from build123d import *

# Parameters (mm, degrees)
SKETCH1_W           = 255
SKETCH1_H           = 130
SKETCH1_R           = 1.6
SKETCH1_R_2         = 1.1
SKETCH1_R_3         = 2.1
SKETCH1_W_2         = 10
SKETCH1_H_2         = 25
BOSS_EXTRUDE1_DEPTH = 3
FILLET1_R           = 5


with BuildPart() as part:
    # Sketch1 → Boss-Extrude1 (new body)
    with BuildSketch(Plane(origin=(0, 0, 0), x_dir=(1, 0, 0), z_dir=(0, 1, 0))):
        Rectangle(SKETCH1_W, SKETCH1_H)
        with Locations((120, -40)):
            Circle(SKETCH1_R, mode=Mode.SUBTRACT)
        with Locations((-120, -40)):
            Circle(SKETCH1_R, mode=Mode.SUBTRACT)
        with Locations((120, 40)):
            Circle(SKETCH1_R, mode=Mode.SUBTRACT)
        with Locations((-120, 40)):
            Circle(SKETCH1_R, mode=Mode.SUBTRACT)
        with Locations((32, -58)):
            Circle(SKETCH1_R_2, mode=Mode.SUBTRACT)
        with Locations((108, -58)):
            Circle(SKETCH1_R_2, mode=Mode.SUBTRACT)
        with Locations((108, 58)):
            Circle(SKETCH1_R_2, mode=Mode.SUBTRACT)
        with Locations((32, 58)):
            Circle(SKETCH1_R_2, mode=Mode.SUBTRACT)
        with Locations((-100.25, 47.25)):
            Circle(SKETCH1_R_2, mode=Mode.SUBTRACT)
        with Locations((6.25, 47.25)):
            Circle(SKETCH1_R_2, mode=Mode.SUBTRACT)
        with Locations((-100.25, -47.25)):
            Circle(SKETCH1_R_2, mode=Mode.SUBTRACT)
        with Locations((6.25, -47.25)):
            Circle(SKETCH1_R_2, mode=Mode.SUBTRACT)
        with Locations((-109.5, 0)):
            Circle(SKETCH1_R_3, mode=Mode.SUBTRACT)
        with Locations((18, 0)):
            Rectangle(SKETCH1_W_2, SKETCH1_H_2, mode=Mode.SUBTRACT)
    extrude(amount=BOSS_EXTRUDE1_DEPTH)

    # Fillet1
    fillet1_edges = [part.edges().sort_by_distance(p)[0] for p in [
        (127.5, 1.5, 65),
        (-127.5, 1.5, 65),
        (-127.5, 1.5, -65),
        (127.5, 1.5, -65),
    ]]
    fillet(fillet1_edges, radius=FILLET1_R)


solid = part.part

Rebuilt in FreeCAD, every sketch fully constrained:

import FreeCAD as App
import Part
import Sketcher
from FreeCAD import Vector
Q = App.Units.Quantity


def edges_at(feature, points):
    """Names of the edges that pass closest to the given points."""
    edges = feature.Shape.Edges
    near = lambda p: min(range(len(edges)), key=lambda i: edges[i].distToShape(Part.Vertex(*p))[0])
    return sorted({f"Edge{near(p) + 1}" for p in points})

doc = App.newDocument("Part")
body = doc.addObject("PartDesign::Body", "Body")

sketch1 = body.newObject("Sketcher::SketchObject", "Sketch")
sketch1.AttachmentSupport = (doc.getObject("XZ_Plane"), [""])
sketch1.MapMode = "FlatFace"
sketch1.addGeometry(Part.LineSegment(Vector(-127.5, -65, 0), Vector(-127.5, 65, 0)), False)
sketch1.addGeometry(Part.LineSegment(Vector(-127.5, 65, 0), Vector(127.5, 65, 0)), False)
sketch1.addGeometry(Part.LineSegment(Vector(127.5, 65, 0), Vector(127.5, -65, 0)), False)
sketch1.addGeometry(Part.LineSegment(Vector(127.5, -65, 0), Vector(-127.5, -65, 0)), False)
sketch1.addGeometry(Part.Circle(Vector(-100.2, 47.2, 0), Vector(0, 0, 1), 1.1), False)
sketch1.addGeometry(Part.Circle(Vector(-120, 40, 0), Vector(0, 0, 1), 1.6), False)
sketch1.addGeometry(Part.Circle(Vector(6.2, 47.2, 0), Vector(0, 0, 1), 1.1), False)
sketch1.addGeometry(Part.Circle(Vector(32, 58, 0), Vector(0, 0, 1), 1.1), False)
sketch1.addGeometry(Part.Circle(Vector(108, 58, 0), Vector(0, 0, 1), 1.1), False)
sketch1.addGeometry(Part.Circle(Vector(120, 40, 0), Vector(0, 0, 1), 1.6), False)
sketch1.addGeometry(Part.Circle(Vector(-109.5, 0, 0), Vector(0, 0, 1), 2.1), False)
sketch1.addGeometry(Part.Circle(Vector(-120, -40, 0), Vector(0, 0, 1), 1.6), False)
sketch1.addGeometry(Part.Circle(Vector(-100.2, -47.2, 0), Vector(0, 0, 1), 1.1), False)
sketch1.addGeometry(Part.LineSegment(Vector(23, 12.5, 0), Vector(13, 12.5, 0)), False)
sketch1.addGeometry(Part.LineSegment(Vector(13, 12.5, 0), Vector(13, -12.5, 0)), False)
sketch1.addGeometry(Part.LineSegment(Vector(13, -12.5, 0), Vector(23, -12.5, 0)), False)
sketch1.addGeometry(Part.LineSegment(Vector(23, -12.5, 0), Vector(23, 12.5, 0)), False)
sketch1.addGeometry(Part.Circle(Vector(6.2, -47.2, 0), Vector(0, 0, 1), 1.1), False)
sketch1.addGeometry(Part.Circle(Vector(32, -58, 0), Vector(0, 0, 1), 1.1), False)
sketch1.addGeometry(Part.Circle(Vector(120, -40, 0), Vector(0, 0, 1), 1.6), False)
sketch1.addGeometry(Part.Circle(Vector(108, -58, 0), Vector(0, 0, 1), 1.1), False)
sketch1.addConstraint(Sketcher.Constraint("Coincident", 0, 2, 1, 1))
sketch1.addConstraint(Sketcher.Constraint("Coincident", 1, 2, 2, 1))
sketch1.addConstraint(Sketcher.Constraint("Coincident", 2, 2, 3, 1))
sketch1.addConstraint(Sketcher.Constraint("Coincident", 3, 2, 0, 1))
sketch1.addConstraint(Sketcher.Constraint("Coincident", 13, 2, 14, 1))
sketch1.addConstraint(Sketcher.Constraint("Coincident", 14, 2, 15, 1))
sketch1.addConstraint(Sketcher.Constraint("Coincident", 15, 2, 16, 1))
sketch1.addConstraint(Sketcher.Constraint("Coincident", 16, 2, 13, 1))
sketch1.addConstraint(Sketcher.Constraint("Vertical", 0))
sketch1.addConstraint(Sketcher.Constraint("Horizontal", 1))
sketch1.addConstraint(Sketcher.Constraint("Vertical", 2))
sketch1.addConstraint(Sketcher.Constraint("Horizontal", 3))
sketch1.addConstraint(Sketcher.Constraint("Horizontal", 13))
sketch1.addConstraint(Sketcher.Constraint("Vertical", 14))
sketch1.addConstraint(Sketcher.Constraint("Horizontal", 15))
sketch1.addConstraint(Sketcher.Constraint("Vertical", 16))
sketch1.addConstraint(Sketcher.Constraint("Equal", 4, 6))
sketch1.addConstraint(Sketcher.Constraint("Equal", 6, 7))
sketch1.addConstraint(Sketcher.Constraint("Equal", 7, 8))
sketch1.addConstraint(Sketcher.Constraint("Equal", 5, 9))
sketch1.addConstraint(Sketcher.Constraint("Equal", 9, 11))
sketch1.addConstraint(Sketcher.Constraint("Equal", 8, 12))
sketch1.addConstraint(Sketcher.Constraint("Equal", 12, 17))
sketch1.addConstraint(Sketcher.Constraint("Equal", 17, 18))
sketch1.addConstraint(Sketcher.Constraint("Equal", 11, 19))
sketch1.addConstraint(Sketcher.Constraint("Equal", 18, 20))
sketch1.addConstraint(Sketcher.Constraint("Symmetric", 9, 3, 11, 3, -1, 1))
sketch1.addConstraint(Sketcher.Constraint("Symmetric", 5, 3, 19, 3, -1, 1))
sketch1.addConstraint(Sketcher.Constraint("Symmetric", 0, 2, 2, 2, -1, 1))
sketch1.addConstraint(Sketcher.Constraint("Symmetric", 5, 3, 9, 3, -2))
sketch1.addConstraint(Sketcher.Constraint("Symmetric", 4, 3, 12, 3, -1))
sketch1.addConstraint(Sketcher.Constraint("Symmetric", 6, 3, 17, 3, -1))
sketch1.addConstraint(Sketcher.Constraint("Symmetric", 7, 3, 18, 3, -1))
sketch1.addConstraint(Sketcher.Constraint("Symmetric", 8, 3, 20, 3, -1))
sketch1.addConstraint(Sketcher.Constraint("PointOnObject", 10, 3, -1))
sketch1.addConstraint(Sketcher.Constraint("Horizontal", 4, 3, 6, 3))
sketch1.addConstraint(Sketcher.Constraint("Horizontal", 7, 3, 8, 3))
sketch1.addConstraint(Sketcher.Constraint("Diameter", 4, Q("2.2 mm")))
sketch1.addConstraint(Sketcher.Constraint("Diameter", 5, Q("3.2 mm")))
sketch1.addConstraint(Sketcher.Constraint("Diameter", 10, Q("4.2 mm")))
sketch1.addConstraint(Sketcher.Constraint("DistanceX", 1, 1, 1, 2, Q("255 mm")))
sketch1.addConstraint(Sketcher.Constraint("DistanceX", 13, 2, 13, 1, Q("10 mm")))
sketch1.addConstraint(Sketcher.Constraint("DistanceY", 0, 1, 0, 2, Q("130 mm")))
sketch1.addConstraint(Sketcher.Constraint("DistanceY", 14, 2, 14, 1, Q("25 mm")))
sketch1.addConstraint(Sketcher.Constraint("DistanceX", 5, 3, -1, 1, Q("120 mm")))
sketch1.addConstraint(Sketcher.Constraint("DistanceY", -1, 1, 5, 3, Q("40 mm")))
sketch1.addConstraint(Sketcher.Constraint("DistanceX", -1, 1, 7, 3, Q("32 mm")))
sketch1.addConstraint(Sketcher.Constraint("DistanceY", -1, 1, 7, 3, Q("58 mm")))
sketch1.addConstraint(Sketcher.Constraint("DistanceX", -1, 1, 8, 3, Q("108 mm")))
sketch1.addConstraint(Sketcher.Constraint("DistanceX", -1, 1, 13, 2, Q("13 mm")))
sketch1.addConstraint(Sketcher.Constraint("DistanceX", 0, 2, 10, 3, Q("18 mm")))
sketch1.addConstraint(Sketcher.Constraint("DistanceY", -1, 1, 13, 2, Q("12.5 mm")))
sketch1.addConstraint(Sketcher.Constraint("DistanceX", 4, 3, 6, 3, Q("106.5 mm")))
sketch1.addConstraint(Sketcher.Constraint("DistanceY", 12, 3, 4, 3, Q("94.5 mm")))
sketch1.addConstraint(Sketcher.Constraint("DistanceX", 4, 3, -1, 1, Q("100.25 mm")))
pad1 = body.newObject("PartDesign::Pad", "Pad")
pad1.Profile = sketch1
pad1.Length = 3
pad1.Reversed = True
doc.recompute()

fillet = body.newObject("PartDesign::Fillet", "Fillet")
fillet.Base = (pad1, edges_at(pad1, [
    (127.5, 1.5, 65),
    (-127.5, 1.5, 65),
    (-127.5, 1.5, -65),
    (127.5, 1.5, -65),
]))
fillet.Radius = 5

doc.recompute()
